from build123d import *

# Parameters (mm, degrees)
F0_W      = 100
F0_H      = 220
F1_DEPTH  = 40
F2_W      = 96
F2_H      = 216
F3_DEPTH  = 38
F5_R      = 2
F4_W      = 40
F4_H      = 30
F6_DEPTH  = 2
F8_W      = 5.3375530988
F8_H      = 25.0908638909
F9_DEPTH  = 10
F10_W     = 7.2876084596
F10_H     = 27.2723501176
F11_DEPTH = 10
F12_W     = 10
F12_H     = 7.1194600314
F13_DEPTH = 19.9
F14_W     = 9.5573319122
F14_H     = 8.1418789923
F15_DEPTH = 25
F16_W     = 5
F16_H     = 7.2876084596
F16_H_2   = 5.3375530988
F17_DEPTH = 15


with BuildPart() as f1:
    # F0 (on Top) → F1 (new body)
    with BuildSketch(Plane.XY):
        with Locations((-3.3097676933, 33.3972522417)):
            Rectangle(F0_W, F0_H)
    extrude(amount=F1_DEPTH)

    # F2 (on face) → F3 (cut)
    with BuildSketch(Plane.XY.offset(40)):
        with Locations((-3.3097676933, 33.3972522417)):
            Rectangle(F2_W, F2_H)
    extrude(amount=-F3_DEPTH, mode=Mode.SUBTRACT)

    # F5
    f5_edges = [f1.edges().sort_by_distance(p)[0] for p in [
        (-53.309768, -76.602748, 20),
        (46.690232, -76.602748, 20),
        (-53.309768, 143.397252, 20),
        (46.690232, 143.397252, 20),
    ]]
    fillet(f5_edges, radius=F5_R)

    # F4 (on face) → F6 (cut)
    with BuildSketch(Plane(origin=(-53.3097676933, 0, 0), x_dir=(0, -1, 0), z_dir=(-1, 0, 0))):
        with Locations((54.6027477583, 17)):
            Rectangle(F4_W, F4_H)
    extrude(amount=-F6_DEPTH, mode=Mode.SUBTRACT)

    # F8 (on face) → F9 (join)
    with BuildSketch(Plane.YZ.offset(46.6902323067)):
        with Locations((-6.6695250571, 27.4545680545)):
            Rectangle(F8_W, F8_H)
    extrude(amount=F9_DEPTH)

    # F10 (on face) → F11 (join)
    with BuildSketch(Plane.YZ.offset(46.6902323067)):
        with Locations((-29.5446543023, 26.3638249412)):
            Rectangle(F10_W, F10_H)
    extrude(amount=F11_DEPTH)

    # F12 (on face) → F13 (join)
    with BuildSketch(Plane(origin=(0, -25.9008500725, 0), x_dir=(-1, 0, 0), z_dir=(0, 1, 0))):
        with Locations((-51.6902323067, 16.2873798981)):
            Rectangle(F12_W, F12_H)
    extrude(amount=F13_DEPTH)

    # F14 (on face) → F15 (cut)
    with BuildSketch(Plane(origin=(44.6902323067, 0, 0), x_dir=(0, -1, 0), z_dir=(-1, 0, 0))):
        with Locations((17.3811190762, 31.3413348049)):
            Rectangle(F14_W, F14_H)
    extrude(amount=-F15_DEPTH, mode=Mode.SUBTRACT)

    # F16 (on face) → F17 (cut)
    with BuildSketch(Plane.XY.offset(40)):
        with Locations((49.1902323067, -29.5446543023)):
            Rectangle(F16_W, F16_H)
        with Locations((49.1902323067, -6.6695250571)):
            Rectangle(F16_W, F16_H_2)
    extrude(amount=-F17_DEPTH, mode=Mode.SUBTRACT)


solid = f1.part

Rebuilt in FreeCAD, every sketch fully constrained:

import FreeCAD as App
import Part
import Sketcher
Q = App.Units.Quantity


def edges_at(feature, points):
    """Names of the edges that pass closest to the given points."""
    edges = feature.Shape.Edges
    near = lambda p: min(range(len(edges)), key=lambda i: edges[i].distToShape(Part.Vertex(*p))[0])
    return sorted({f"Edge{near(p) + 1}" for p in points})


def add_polygon(sketch, points):
    """Adds a closed chain of lines whose ends are joined by coincident constraints."""
    first, n = sketch.GeometryCount, len(points)
    for a, b in zip(points, points[1:] + points[:1]):
        sketch.addGeometry(Part.LineSegment(App.Vector(*a, 0), App.Vector(*b, 0)), False)
    for i in range(n):
        sketch.addConstraint(Sketcher.Constraint("Coincident", first + i, 2, first + (i + 1) % n, 1))

doc = App.newDocument("Part")
params = doc.addObject("Spreadsheet::Sheet", "Params")
for row, (alias, value) in enumerate([
    ("sketch1_width", "100 mm"),
    ("sketch1_height", "220 mm"),
    ("pad1_length", "40 mm"),
    ("sketch2_width", "96 mm"),
    ("sketch2_height", "216 mm"),
    ("pocket1_length", "38 mm"),
    ("fillet_radius", "2 mm"),
    ("sketch3_width", "40 mm"),
    ("sketch3_height", "30 mm"),
    ("pocket2_length", "2 mm"),
    ("pad2_length", "10 mm"),
    ("pad3_length", "10 mm"),
    ("sketch6_width", "10 mm"),
    ("pad4_length", "19.9 mm"),
    ("pocket3_length", "25 mm"),
    ("sketch8_width", "5 mm"),
    ("pocket4_length", "15 mm"),
], start=1):
    params.set(f"A{row}", alias)
    params.set(f"B{row}", "=" + value)
    params.setAlias(f"B{row}", alias)

body = doc.addObject("PartDesign::Body", "Body")

# Sketch on XY plane
sketch1 = body.newObject("Sketcher::SketchObject", "Sketch")
sketch1.AttachmentSupport = (doc.getObject("XY_Plane"), [""])
sketch1.MapMode = "FlatFace"
add_polygon(sketch1, [(-53, 143), (-53, -77), (47, -77), (47, 143)])  # lines 0-3
sketch1.addConstraint([
    Sketcher.Constraint("Vertical", 0),
    Sketcher.Constraint("Horizontal", 1),
    Sketcher.Constraint("Vertical", 2),
    Sketcher.Constraint("Horizontal", 3),
    Sketcher.Constraint("DistanceX", 1, 1, 1, 2, Q("100 mm")),
    Sketcher.Constraint("DistanceY", 0, 2, 0, 1, Q("220 mm")),
    Sketcher.Constraint("DistanceX", 0, 2, -1, 1, Q("53.309768 mm")),
    Sketcher.Constraint("DistanceY", 0, 2, -1, 1, Q("76.602748 mm")),
])
sketch1.setExpression("Constraints[8]", "Params.sketch1_width")
sketch1.setExpression("Constraints[9]", "Params.sketch1_height")
pad1 = body.newObject("PartDesign::Pad", "Pad")
pad1.Profile = sketch1
pad1.setExpression("Length", "Params.pad1_length")

# Sketch on XY plane
sketch2 = body.newObject("Sketcher::SketchObject", "Sketch001")
sketch2.AttachmentSupport = (doc.getObject("XY_Plane"), [""])
sketch2.MapMode = "FlatFace"
sketch2.AttachmentOffset = App.Placement(App.Vector(0, 0, 40), App.Rotation())
add_polygon(sketch2, [(-51, 141), (-51, -75), (45, -75), (45, 141)])  # lines 0-3
sketch2.addConstraint([
    Sketcher.Constraint("Vertical", 0),
    Sketcher.Constraint("Horizontal", 1),
    Sketcher.Constraint("Vertical", 2),
    Sketcher.Constraint("Horizontal", 3),
    Sketcher.Constraint("DistanceX", 1, 1, 1, 2, Q("96 mm")),
    Sketcher.Constraint("DistanceY", 0, 2, 0, 1, Q("216 mm")),
    Sketcher.Constraint("DistanceX", 0, 2, -1, 1, Q("51.309768 mm")),
    Sketcher.Constraint("DistanceY", 0, 2, -1, 1, Q("74.602748 mm")),
])
sketch2.setExpression("Constraints[8]", "Params.sketch2_width")
sketch2.setExpression("Constraints[9]", "Params.sketch2_height")
pocket1 = body.newObject("PartDesign::Pocket", "Pocket")
pocket1.Profile = sketch2
pocket1.setExpression("Length", "Params.pocket1_length")
doc.recompute()

fillet = body.newObject("PartDesign::Fillet", "Fillet")
fillet.Base = (pocket1, edges_at(pocket1, [
    (-53.31, -76.603, 20),
    (46.69, -76.603, 20),
    (-53.31, 143.397, 20),
    (46.69, 143.397, 20),
]))
fillet.setExpression("Radius", "Params.fillet_radius")

# Sketch on YZ plane
sketch3 = body.newObject("Sketcher::SketchObject", "Sketch002")
sketch3.AttachmentSupport = (doc.getObject("YZ_Plane"), [""])
sketch3.MapMode = "FlatFace"
sketch3.AttachmentOffset = App.Placement(App.Vector(0, 0, -53.309768), App.Rotation())
add_polygon(sketch3, [(-35, 32), (-35, 2), (-75, 2), (-75, 32)])  # lines 0-3
sketch3.addConstraint([
    Sketcher.Constraint("Vertical", 0),
    Sketcher.Constraint("Horizontal", 1),
    Sketcher.Constraint("Vertical", 2),
    Sketcher.Constraint("Horizontal", 3),
    Sketcher.Constraint("DistanceX", 1, 2, 1, 1, Q("40 mm")),
    Sketcher.Constraint("DistanceY", 0, 2, 0, 1, Q("30 mm")),
    Sketcher.Constraint("DistanceY", -1, 1, 0, 2, Q("2 mm")),
    Sketcher.Constraint("DistanceX", 0, 2, -1, 1, Q("34.602748 mm")),
])
sketch3.setExpression("Constraints[8]", "Params.sketch3_width")
sketch3.setExpression("Constraints[9]", "Params.sketch3_height")
pocket2 = body.newObject("PartDesign::Pocket", "Pocket001")
pocket2.Profile = sketch3
pocket2.setExpression("Length", "Params.pocket2_length")
pocket2.Reversed = True

# Sketch on YZ plane
sketch4 = body.newObject("Sketcher::SketchObject", "Sketch003")
sketch4.AttachmentSupport = (doc.getObject("YZ_Plane"), [""])
sketch4.MapMode = "FlatFace"
sketch4.AttachmentOffset = App.Placement(App.Vector(0, 0, 46.690232), App.Rotation())
add_polygon(sketch4, [(-9, 40), (-9, 15), (-4, 15), (-4, 40)])  # lines 0-3
sketch4.addConstraint([
    Sketcher.Constraint("Vertical", 0),
    Sketcher.Constraint("Horizontal", 1),
    Sketcher.Constraint("Vertical", 2),
    Sketcher.Constraint("Horizontal", 3),
    Sketcher.Constraint("DistanceY", -1, 1, 2, 2, Q("40 mm")),
    Sketcher.Constraint("DistanceX", 0, 2, -1, 1, Q("9.338302 mm")),
    Sketcher.Constraint("DistanceX", 1, 1, 1, 2, Q("5.337553 mm")),
    Sketcher.Constraint("DistanceY", 0, 2, 0, 1, Q("25.090864 mm")),
])
pad2 = body.newObject("PartDesign::Pad", "Pad001")
pad2.Profile = sketch4
pad2.setExpression("Length", "Params.pad2_length")

# Sketch on YZ plane
sketch5 = body.newObject("Sketcher::SketchObject", "Sketch004")
sketch5.AttachmentSupport = (doc.getObject("YZ_Plane"), [""])
sketch5.MapMode = "FlatFace"
sketch5.AttachmentOffset = App.Placement(App.Vector(0, 0, 46.690232), App.Rotation())
add_polygon(sketch5, [(-33, 40), (-33, 13), (-26, 13), (-26, 40)])  # lines 0-3
sketch5.addConstraint([
    Sketcher.Constraint("Vertical", 0),
    Sketcher.Constraint("Horizontal", 1),
    Sketcher.Constraint("Vertical", 2),
    Sketcher.Constraint("Horizontal", 3),
    Sketcher.Constraint("DistanceY", -1, 1, 2, 2, Q("40 mm")),
    Sketcher.Constraint("DistanceX", 1, 1, 1, 2, Q("7.287608 mm")),
    Sketcher.Constraint("DistanceY", 0, 2, 0, 1, Q("27.27235 mm")),
    Sketcher.Constraint("DistanceX", 0, 2, -1, 1, Q("33.188459 mm")),
])
pad3 = body.newObject("PartDesign::Pad", "Pad002")
pad3.Profile = sketch5
pad3.setExpression("Length", "Params.pad3_length")

# Sketch on XZ plane
sketch6 = body.newObject("Sketcher::SketchObject", "Sketch005")
sketch6.AttachmentSupport = (doc.getObject("XZ_Plane"), [""])
sketch6.MapMode = "FlatFace"
sketch6.AttachmentOffset = App.Placement(App.Vector(0, 0, 25.90085), App.Rotation())
add_polygon(sketch6, [(57, 20), (57, 13), (47, 13), (47, 20)])  # lines 0-3
sketch6.addConstraint([
    Sketcher.Constraint("Vertical", 0),
    Sketcher.Constraint("Horizontal", 1),
    Sketcher.Constraint("Vertical", 2),
    Sketcher.Constraint("Horizontal", 3),
    Sketcher.Constraint("DistanceX", 1, 2, 1, 1, Q("10 mm")),
    Sketcher.Constraint("DistanceY", 0, 2, 0, 1, Q("7.11946 mm")),
    Sketcher.Constraint("DistanceY", -1, 1, 0, 2, Q("12.72765 mm")),
    Sketcher.Constraint("DistanceX", -1, 1, 0, 2, Q("56.690232 mm")),
])
sketch6.setExpression("Constraints[8]", "Params.sketch6_width")
pad4 = body.newObject("PartDesign::Pad", "Pad003")
pad4.Profile = sketch6
pad4.setExpression("Length", "Params.pad4_length")
pad4.Reversed = True

# Sketch on YZ plane
sketch7 = body.newObject("Sketcher::SketchObject", "Sketch006")
sketch7.AttachmentSupport = (doc.getObject("YZ_Plane"), [""])
sketch7.MapMode = "FlatFace"
sketch7.AttachmentOffset = App.Placement(App.Vector(0, 0, 44.690232), App.Rotation())
add_polygon(sketch7, [(-13, 35), (-13, 27), (-22, 27), (-22, 35)])  # lines 0-3
sketch7.addConstraint([
    Sketcher.Constraint("Vertical", 0),
    Sketcher.Constraint("Horizontal", 1),
    Sketcher.Constraint("Vertical", 2),
    Sketcher.Constraint("Horizontal", 3),
    Sketcher.Constraint("DistanceX", 1, 2, 1, 1, Q("9.557332 mm")),
    Sketcher.Constraint("DistanceY", 0, 2, 0, 1, Q("8.141879 mm")),
    Sketcher.Constraint("DistanceX", 0, 2, -1, 1, Q("12.602453 mm")),
    Sketcher.Constraint("DistanceY", -1, 1, 0, 2, Q("27.270395 mm")),
])
pocket3 = body.newObject("PartDesign::Pocket", "Pocket002")
pocket3.Profile = sketch7
pocket3.setExpression("Length", "Params.pocket3_length")
pocket3.Reversed = True

# Sketch on XY plane
sketch8 = body.newObject("Sketcher::SketchObject", "Sketch007")
sketch8.AttachmentSupport = (doc.getObject("XY_Plane"), [""])
sketch8.MapMode = "FlatFace"
sketch8.AttachmentOffset = App.Placement(App.Vector(0, 0, 40), App.Rotation())
add_polygon(sketch8, [(47, -26), (47, -33), (52, -33), (52, -26)])  # lines 0-3
add_polygon(sketch8, [(47, -4), (47, -9), (52, -9), (52, -4)])  # lines 4-7
sketch8.addConstraint([
    Sketcher.Constraint("Vertical", 0),
    Sketcher.Constraint("Horizontal", 1),
    Sketcher.Constraint("Vertical", 2),
    Sketcher.Constraint("Horizontal", 3),
    Sketcher.Constraint("Vertical", 4),
    Sketcher.Constraint("Horizontal", 5),
    Sketcher.Constraint("Vertical", 6),
    Sketcher.Constraint("Horizontal", 7),
    Sketcher.Constraint("Vertical", 3, 2, 4, 2),
    Sketcher.Constraint("Vertical", 2, 2, 5, 2),
    Sketcher.Constraint("DistanceX", 1, 1, 1, 2, Q("5 mm")),
    Sketcher.Constraint("DistanceY", 0, 2, 0, 1, Q("7.287608 mm")),
    Sketcher.Constraint("DistanceY", 4, 2, -1, 1, Q("9.338302 mm")),
    Sketcher.Constraint("DistanceY", 2, 2, 6, 2, Q("21.900102 mm")),
    Sketcher.Constraint("DistanceY", 4, 2, 4, 1, Q("5.337553 mm")),
    Sketcher.Constraint("DistanceX", -1, 1, 0, 2, Q("46.690232 mm")),
])
sketch8.setExpression("Constraints[18]", "Params.sketch8_width")
pocket4 = body.newObject("PartDesign::Pocket", "Pocket003")
pocket4.Profile = sketch8
pocket4.setExpression("Length", "Params.pocket4_length")

doc.recompute()
